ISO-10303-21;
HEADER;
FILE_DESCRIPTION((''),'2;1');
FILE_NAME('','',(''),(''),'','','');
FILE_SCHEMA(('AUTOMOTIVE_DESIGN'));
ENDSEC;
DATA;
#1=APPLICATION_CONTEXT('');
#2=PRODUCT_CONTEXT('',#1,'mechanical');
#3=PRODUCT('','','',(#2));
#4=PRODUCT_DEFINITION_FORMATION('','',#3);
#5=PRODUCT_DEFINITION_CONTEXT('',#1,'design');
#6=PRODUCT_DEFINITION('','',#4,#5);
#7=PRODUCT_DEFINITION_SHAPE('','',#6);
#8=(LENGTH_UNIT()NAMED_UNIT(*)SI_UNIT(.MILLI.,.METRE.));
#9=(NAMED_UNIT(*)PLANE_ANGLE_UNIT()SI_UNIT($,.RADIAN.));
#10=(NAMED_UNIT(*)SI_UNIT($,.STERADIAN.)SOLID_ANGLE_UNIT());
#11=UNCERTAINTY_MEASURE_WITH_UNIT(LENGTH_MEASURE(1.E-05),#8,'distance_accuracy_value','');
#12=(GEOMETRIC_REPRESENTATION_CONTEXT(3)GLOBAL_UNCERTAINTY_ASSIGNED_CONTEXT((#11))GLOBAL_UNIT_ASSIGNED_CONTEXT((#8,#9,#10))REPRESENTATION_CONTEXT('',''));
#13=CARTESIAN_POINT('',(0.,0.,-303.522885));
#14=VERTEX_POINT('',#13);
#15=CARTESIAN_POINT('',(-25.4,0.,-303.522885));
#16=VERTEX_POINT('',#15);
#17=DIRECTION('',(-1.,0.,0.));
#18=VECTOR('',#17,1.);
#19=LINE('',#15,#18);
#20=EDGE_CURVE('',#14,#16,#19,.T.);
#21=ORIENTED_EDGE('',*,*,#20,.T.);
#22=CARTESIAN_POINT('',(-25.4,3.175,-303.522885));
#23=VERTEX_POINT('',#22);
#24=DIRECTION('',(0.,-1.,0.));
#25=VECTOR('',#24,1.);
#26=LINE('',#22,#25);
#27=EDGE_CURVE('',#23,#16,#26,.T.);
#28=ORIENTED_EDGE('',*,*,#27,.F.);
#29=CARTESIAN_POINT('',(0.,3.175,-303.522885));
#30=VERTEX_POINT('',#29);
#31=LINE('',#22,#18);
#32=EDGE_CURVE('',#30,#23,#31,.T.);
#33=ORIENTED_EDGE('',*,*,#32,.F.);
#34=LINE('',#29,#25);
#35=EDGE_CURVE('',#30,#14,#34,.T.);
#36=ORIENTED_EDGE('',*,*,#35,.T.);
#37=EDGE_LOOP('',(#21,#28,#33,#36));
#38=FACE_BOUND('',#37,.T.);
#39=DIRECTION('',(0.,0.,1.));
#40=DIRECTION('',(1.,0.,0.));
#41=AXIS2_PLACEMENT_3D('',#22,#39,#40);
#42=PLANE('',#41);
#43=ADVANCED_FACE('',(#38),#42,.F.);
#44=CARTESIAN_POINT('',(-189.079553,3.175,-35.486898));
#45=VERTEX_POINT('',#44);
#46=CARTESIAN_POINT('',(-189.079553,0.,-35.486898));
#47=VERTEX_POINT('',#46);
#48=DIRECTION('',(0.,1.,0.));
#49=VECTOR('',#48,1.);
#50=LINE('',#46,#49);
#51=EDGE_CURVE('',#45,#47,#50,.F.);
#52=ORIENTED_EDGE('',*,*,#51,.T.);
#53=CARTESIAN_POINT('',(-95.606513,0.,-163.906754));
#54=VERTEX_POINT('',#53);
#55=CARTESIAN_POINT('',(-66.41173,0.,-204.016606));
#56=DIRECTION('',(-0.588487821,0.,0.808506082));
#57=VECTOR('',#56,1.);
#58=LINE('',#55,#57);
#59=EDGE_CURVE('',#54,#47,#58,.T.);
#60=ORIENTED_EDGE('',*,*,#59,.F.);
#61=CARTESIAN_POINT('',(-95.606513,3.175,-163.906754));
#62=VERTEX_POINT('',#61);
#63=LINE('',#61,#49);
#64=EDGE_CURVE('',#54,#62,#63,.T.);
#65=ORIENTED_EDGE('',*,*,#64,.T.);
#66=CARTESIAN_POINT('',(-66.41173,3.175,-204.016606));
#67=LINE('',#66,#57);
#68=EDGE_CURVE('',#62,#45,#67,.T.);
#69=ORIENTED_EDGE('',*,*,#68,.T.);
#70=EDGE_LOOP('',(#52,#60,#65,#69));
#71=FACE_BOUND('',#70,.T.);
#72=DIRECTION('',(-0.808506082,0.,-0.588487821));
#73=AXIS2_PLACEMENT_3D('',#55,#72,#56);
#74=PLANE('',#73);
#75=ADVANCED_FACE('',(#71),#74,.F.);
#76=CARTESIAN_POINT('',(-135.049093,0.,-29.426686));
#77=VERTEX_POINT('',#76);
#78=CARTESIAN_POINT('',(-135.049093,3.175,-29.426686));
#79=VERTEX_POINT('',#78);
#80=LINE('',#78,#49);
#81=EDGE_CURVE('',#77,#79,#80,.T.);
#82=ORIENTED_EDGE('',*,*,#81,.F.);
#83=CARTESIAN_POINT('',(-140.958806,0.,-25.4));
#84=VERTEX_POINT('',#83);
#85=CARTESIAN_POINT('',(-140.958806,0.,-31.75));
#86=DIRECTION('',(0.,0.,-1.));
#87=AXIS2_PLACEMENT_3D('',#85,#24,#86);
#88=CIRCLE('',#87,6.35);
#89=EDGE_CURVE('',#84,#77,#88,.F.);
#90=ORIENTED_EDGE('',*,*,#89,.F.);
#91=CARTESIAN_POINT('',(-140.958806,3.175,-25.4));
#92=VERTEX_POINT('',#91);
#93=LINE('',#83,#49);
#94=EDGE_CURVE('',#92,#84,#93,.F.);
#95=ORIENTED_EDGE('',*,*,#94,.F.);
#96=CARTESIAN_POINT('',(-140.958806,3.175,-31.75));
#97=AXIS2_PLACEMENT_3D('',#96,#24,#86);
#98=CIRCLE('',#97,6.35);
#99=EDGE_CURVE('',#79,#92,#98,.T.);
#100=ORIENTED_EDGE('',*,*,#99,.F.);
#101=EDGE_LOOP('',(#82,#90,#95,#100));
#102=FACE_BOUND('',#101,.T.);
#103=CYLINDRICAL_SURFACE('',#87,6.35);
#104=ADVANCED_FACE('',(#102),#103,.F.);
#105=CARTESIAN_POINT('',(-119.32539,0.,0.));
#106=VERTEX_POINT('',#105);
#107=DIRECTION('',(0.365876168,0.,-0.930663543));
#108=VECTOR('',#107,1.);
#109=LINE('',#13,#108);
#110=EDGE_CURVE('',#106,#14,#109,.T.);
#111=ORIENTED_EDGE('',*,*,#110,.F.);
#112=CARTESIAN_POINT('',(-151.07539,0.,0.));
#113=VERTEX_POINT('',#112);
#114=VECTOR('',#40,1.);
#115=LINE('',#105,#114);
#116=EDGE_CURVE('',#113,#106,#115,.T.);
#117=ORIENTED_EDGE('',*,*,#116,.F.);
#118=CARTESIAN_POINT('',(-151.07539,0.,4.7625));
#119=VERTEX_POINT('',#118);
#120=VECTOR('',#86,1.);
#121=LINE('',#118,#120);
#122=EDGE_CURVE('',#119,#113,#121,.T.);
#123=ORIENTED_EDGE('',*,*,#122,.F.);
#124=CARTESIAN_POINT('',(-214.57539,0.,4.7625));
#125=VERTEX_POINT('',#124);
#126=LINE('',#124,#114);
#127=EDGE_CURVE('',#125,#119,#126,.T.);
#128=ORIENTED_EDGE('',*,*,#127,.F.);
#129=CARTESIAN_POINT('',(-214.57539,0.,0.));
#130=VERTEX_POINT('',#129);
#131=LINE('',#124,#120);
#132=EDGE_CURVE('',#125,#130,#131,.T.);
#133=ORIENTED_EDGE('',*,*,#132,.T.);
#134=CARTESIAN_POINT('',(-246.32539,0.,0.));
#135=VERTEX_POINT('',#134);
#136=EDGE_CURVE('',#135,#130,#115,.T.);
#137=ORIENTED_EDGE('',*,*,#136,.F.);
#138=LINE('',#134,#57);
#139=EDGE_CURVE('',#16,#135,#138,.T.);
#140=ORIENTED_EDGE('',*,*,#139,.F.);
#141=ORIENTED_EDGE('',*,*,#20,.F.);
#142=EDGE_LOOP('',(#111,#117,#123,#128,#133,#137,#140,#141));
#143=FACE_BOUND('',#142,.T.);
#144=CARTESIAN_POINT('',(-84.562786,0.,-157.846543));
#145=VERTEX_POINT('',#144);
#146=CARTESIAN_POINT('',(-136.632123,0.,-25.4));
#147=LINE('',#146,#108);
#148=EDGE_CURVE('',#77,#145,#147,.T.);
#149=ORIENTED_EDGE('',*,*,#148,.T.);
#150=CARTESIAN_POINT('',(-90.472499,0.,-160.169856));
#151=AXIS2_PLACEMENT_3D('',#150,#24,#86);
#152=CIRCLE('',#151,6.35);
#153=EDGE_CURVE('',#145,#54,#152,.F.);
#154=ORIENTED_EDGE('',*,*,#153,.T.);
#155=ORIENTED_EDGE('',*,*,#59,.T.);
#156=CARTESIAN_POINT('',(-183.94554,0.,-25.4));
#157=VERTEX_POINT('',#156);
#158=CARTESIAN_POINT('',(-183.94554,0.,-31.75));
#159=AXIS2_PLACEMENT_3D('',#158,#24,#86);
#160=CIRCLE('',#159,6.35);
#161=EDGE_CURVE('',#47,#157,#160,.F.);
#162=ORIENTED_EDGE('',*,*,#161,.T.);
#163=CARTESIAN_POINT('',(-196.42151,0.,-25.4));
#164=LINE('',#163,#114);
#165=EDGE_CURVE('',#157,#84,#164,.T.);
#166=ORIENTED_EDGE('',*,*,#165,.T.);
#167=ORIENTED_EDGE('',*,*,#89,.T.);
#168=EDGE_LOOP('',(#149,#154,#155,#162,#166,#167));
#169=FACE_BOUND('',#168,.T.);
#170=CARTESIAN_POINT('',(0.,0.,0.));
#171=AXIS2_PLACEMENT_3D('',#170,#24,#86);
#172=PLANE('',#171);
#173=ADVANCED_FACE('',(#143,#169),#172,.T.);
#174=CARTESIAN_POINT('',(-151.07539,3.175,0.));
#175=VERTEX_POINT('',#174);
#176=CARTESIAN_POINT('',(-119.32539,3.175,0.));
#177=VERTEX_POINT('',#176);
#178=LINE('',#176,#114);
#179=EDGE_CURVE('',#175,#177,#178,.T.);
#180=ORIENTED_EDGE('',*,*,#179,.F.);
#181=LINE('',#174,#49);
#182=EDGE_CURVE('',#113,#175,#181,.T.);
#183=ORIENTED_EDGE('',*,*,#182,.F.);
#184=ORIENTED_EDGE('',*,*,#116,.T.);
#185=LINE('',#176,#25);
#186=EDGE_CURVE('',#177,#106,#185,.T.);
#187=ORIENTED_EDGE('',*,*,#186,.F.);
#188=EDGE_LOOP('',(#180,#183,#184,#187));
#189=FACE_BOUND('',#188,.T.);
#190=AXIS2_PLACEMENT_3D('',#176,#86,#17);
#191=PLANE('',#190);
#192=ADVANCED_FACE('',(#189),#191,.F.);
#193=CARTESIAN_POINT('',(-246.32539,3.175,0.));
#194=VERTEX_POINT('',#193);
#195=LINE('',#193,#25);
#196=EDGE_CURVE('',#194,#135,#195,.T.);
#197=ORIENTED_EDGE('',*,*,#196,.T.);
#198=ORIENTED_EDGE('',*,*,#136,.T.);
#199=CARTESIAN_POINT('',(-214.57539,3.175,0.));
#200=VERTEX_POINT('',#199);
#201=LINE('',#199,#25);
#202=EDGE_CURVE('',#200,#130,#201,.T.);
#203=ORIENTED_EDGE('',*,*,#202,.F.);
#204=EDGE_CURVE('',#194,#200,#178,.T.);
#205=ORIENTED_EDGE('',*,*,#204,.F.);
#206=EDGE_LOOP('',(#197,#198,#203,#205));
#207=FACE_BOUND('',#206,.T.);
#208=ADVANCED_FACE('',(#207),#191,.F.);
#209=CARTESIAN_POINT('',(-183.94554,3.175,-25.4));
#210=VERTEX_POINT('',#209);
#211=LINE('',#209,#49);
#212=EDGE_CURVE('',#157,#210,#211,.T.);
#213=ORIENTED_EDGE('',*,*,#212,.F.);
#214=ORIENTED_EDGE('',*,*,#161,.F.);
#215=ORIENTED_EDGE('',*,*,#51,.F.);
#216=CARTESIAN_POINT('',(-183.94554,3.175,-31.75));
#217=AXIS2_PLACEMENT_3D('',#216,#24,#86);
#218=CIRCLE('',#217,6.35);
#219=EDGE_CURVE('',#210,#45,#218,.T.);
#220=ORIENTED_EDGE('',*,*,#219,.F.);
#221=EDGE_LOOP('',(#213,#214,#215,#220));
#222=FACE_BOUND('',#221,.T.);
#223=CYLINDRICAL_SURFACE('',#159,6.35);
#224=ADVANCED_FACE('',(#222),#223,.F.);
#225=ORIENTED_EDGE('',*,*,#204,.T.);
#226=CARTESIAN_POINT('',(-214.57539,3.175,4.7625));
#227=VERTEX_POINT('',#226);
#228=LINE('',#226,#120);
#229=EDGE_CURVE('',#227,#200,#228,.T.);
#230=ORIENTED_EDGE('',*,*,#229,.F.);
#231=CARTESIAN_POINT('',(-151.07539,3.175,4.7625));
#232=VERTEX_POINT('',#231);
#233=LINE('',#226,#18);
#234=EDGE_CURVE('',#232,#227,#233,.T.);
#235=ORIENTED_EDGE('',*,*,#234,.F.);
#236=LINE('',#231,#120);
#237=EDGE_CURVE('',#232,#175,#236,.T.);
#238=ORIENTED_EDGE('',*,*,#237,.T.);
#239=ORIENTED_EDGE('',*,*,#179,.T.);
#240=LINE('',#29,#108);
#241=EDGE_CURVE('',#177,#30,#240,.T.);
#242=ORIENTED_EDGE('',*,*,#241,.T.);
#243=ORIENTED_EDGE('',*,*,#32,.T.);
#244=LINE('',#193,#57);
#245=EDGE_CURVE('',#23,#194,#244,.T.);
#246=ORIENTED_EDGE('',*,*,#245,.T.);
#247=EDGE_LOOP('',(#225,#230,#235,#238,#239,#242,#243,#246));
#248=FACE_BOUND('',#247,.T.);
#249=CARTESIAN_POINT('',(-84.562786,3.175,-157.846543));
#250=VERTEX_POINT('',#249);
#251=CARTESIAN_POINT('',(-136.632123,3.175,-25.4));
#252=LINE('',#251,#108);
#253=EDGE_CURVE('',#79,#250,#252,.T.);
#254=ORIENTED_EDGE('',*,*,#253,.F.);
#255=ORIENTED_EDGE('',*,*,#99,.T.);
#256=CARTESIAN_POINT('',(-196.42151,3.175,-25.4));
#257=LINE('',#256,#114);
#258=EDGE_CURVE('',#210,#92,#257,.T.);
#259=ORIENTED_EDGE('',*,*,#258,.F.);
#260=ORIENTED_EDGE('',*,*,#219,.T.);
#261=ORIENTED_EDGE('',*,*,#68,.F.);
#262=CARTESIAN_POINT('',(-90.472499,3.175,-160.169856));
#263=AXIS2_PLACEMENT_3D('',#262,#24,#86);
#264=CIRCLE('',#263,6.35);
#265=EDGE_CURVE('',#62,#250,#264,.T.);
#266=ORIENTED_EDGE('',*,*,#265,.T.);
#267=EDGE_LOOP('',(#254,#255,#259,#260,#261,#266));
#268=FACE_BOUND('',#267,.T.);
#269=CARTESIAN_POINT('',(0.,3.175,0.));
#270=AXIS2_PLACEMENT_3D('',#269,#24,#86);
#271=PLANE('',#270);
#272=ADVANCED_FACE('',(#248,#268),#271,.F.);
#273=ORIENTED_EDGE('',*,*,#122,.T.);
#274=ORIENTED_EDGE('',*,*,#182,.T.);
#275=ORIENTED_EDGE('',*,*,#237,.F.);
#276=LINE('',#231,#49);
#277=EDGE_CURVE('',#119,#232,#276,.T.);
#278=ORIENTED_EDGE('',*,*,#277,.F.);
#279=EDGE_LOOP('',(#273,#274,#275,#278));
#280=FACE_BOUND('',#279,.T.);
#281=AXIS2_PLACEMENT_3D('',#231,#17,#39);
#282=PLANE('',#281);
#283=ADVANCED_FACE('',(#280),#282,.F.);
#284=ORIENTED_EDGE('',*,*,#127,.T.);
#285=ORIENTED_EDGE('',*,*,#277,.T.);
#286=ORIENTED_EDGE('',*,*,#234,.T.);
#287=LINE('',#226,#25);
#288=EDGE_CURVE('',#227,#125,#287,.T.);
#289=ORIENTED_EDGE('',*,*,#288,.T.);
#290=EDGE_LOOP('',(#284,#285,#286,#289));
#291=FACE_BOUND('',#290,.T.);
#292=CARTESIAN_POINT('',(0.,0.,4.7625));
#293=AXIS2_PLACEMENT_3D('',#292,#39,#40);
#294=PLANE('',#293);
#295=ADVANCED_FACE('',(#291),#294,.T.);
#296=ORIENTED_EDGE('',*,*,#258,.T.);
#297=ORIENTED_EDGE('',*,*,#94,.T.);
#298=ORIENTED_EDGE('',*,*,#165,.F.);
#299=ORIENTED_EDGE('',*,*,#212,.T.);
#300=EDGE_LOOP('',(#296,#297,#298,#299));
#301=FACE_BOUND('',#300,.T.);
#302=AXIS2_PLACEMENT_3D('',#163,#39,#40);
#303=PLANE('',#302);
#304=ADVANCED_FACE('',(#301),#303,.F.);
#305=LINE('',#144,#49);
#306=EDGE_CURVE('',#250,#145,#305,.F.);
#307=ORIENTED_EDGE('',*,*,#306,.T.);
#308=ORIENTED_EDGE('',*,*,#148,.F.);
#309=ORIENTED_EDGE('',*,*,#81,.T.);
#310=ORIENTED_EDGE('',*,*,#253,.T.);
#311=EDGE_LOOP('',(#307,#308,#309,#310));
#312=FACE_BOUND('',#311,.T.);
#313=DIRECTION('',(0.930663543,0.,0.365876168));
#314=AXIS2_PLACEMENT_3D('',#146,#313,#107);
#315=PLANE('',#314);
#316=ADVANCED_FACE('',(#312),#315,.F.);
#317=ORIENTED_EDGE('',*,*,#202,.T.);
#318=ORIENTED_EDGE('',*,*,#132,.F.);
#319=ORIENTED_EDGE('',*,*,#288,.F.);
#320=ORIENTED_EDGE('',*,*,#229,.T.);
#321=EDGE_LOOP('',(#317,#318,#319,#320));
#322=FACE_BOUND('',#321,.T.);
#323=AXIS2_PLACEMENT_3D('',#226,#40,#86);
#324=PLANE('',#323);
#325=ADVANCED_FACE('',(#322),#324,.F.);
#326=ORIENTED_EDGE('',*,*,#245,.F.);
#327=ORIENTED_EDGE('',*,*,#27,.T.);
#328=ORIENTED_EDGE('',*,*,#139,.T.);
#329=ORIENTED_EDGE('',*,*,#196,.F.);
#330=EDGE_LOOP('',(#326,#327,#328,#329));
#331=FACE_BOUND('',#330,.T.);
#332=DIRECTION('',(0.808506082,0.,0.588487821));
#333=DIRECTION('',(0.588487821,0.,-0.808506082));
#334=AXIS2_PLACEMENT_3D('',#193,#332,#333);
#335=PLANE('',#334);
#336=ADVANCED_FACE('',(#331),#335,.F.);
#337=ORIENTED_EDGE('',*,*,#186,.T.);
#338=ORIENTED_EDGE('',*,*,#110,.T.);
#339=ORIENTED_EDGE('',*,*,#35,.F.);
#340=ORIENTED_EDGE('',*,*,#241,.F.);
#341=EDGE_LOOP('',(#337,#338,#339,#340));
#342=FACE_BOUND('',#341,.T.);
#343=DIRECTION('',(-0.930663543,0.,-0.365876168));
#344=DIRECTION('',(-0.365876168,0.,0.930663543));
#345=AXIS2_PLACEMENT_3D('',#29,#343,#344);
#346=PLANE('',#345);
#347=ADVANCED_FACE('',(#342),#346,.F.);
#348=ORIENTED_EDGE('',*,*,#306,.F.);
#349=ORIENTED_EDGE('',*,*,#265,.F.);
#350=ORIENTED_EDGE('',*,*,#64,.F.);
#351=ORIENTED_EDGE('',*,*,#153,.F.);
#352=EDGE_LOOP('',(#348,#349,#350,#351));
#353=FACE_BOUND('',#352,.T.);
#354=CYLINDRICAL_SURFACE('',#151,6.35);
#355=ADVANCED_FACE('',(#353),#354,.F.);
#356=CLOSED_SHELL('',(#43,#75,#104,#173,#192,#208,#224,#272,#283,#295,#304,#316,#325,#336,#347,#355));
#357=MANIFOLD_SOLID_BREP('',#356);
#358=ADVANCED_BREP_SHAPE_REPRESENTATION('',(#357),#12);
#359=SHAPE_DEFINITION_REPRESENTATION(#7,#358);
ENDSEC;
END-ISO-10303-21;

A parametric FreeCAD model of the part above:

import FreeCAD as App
import Part
import Sketcher
Q = App.Units.Quantity


def edges_at(feature, points):
    """Names of the edges that pass closest to the given points."""
    edges = feature.Shape.Edges
    near = lambda p: min(range(len(edges)), key=lambda i: edges[i].distToShape(Part.Vertex(*p))[0])
    return sorted({f"Edge{near(p) + 1}" for p in points})

doc = App.newDocument("Part")
body = doc.addObject("PartDesign::Body", "Body")

# Sketch on XZ plane
sketch1 = body.newObject("Sketcher::SketchObject", "Sketch")
sketch1.AttachmentSupport = (doc.getObject("XZ_Plane"), [""])
sketch1.MapMode = "FlatFace"
sketch1.addGeometry([
    Part.LineSegment(App.Vector(-246, 0, 0), App.Vector(-119, 0, 0)),
    Part.LineSegment(App.Vector(-119, 0, 0), App.Vector(0, -304, 0)),
    Part.LineSegment(App.Vector(0, -304, 0), App.Vector(-25, -304, 0)),
    Part.LineSegment(App.Vector(-25, -304, 0), App.Vector(-246, 0, 0)),
], False)
sketch1.addConstraint([
    Sketcher.Constraint("Coincident", 0, 2, 1, 1),
    Sketcher.Constraint("Coincident", 1, 2, 2, 1),
    Sketcher.Constraint("Coincident", 2, 2, 3, 1),
    Sketcher.Constraint("Coincident", 3, 2, 0, 1),
    Sketcher.Constraint("Horizontal", 0),
    Sketcher.Constraint("Horizontal", 2),
    Sketcher.Constraint("PointOnObject", 0, 2, -1),
    Sketcher.Constraint("PointOnObject", 1, 2, -2),
    Sketcher.Constraint("DistanceX", 0, 1, 0, 2, Q("5 in")),
    Sketcher.Constraint("DistanceX", 2, 2, 2, 1, Q("1 in")),
    Sketcher.Constraint("Distance", 1, Q("12.84 in")),
    Sketcher.Constraint("Distance", 3, Q("14.78 in")),
])
pad1 = body.newObject("PartDesign::Pad", "Pad")
pad1.Profile = sketch1
pad1.Length = Q("0.125 in")
pad1.Reversed = True

# Sketch on XZ plane
sketch2 = body.newObject("Sketcher::SketchObject", "Sketch001")
sketch2.AttachmentSupport = (doc.getObject("XZ_Plane"), [""])
sketch2.MapMode = "FlatFace"
sketch2.AttachmentOffset = App.Placement(App.Vector(0, 0, -0.125 * 25.4), App.Rotation())
sketch2.addGeometry([
    Part.LineSegment(App.Vector(-137, -25, 0), App.Vector(-66, -204, 0)),
    Part.LineSegment(App.Vector(-66, -204, 0), App.Vector(-196, -25, 0)),
    Part.LineSegment(App.Vector(-196, -25, 0), App.Vector(-137, -25, 0)),
], False)
sketch2.addConstraint([
    Sketcher.Constraint("Coincident", 0, 2, 1, 1),
    Sketcher.Constraint("Coincident", 1, 2, 2, 1),
    Sketcher.Constraint("Coincident", 2, 2, 0, 1),
    Sketcher.Constraint("Horizontal", 2),
    Sketcher.Constraint("DistanceY", 1, 2, -1, 1, Q("1 in")),
    Sketcher.Constraint("Distance", 0, 191.923932),
    Sketcher.Constraint("DistanceX", 2, 1, 2, 2, 59.789387),
    Sketcher.Constraint("DistanceX", 0, 2, -1, 1, 66.41173),
    Sketcher.Constraint("DistanceX", 1, 2, -1, 1, 196.42151),
])
pocket1 = body.newObject("PartDesign::Pocket", "Pocket")
pocket1.Profile = sketch2
pocket1.Length = Q("0.125 in")
pocket1.Reversed = True
doc.recompute()

fillet = body.newObject("PartDesign::Fillet", "Fillet")
fillet.Base = (pocket1, edges_at(pocket1, [(-136.632, 1.587, -25.4), (-196.422, 1.587, -25.4), (-66.412, 1.587, -204.017)]))
fillet.Radius = Q("0.25 in")

# Sketch on XY plane
sketch3 = body.newObject("Sketcher::SketchObject", "Sketch002")
sketch3.AttachmentSupport = (doc.getObject("XY_Plane"), [""])
sketch3.MapMode = "FlatFace"
sketch3.addGeometry([
    Part.LineSegment(App.Vector(-214.6, 3.2, 0), App.Vector(-214.6, 0, 0)),
    Part.LineSegment(App.Vector(-214.6, 0, 0), App.Vector(-151.1, 0, 0)),
    Part.LineSegment(App.Vector(-151.1, 0, 0), App.Vector(-151.1, 3.2, 0)),
    Part.LineSegment(App.Vector(-151.1, 3.2, 0), App.Vector(-214.6, 3.2, 0)),
], False)
sketch3.addConstraint([
    Sketcher.Constraint("Coincident", 0, 2, 1, 1),
    Sketcher.Constraint("Coincident", 1, 2, 2, 1),
    Sketcher.Constraint("Coincident", 2, 2, 3, 1),
    Sketcher.Constraint("Coincident", 3, 2, 0, 1),
    Sketcher.Constraint("Vertical", 0),
    Sketcher.Constraint("Horizontal", 1),
    Sketcher.Constraint("Vertical", 2),
    Sketcher.Constraint("Horizontal", 3),
    Sketcher.Constraint("PointOnObject", 0, 2, -1),
    Sketcher.Constraint("DistanceX", 1, 1, 1, 2, Q("2.5 in")),
    Sketcher.Constraint("DistanceY", 0, 2, 0, 1, Q("0.125 in")),
    Sketcher.Constraint("DistanceX", 0, 2, -1, 1, 214.57539),
])
pad2 = body.newObject("PartDesign::Pad", "Pad001")
pad2.Profile = sketch3
pad2.Length = Q("0.1875 in")

doc.recompute()
